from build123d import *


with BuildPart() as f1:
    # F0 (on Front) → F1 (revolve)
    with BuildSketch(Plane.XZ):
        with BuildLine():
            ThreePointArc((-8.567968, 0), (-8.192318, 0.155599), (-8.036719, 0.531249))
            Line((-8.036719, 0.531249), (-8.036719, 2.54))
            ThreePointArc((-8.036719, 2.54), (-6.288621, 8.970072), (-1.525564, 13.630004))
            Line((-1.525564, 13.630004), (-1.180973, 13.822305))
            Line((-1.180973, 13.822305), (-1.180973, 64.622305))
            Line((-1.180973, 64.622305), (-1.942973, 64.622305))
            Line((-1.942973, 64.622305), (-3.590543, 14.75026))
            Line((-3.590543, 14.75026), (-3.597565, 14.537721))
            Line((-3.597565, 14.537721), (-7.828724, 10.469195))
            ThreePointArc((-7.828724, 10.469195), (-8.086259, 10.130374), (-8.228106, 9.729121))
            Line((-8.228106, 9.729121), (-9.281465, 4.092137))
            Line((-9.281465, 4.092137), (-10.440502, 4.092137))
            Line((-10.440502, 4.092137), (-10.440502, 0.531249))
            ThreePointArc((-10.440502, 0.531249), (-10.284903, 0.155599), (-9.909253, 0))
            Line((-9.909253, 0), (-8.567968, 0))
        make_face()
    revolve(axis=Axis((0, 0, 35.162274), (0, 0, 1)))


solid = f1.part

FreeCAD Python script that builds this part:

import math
import FreeCAD as App
import Part
import Sketcher

V = App.Vector
Q = App.Units.Quantity

doc = App.newDocument("Part")
body = doc.addObject("PartDesign::Body", "Body")

# Sketch on XZ plane
sketch1 = body.newObject("Sketcher::SketchObject", "Sketch")
sketch1.AttachmentSupport = (doc.getObject("XZ_Plane"), [""])
sketch1.MapMode = "FlatFace"
sketch1.addGeometry([
    Part.ArcOfCircle(Part.Circle(V(-8.57, 0.53, 0), V(0, 0, 1), 0.53), math.radians(-90), math.radians(0)),  # 0
    Part.LineSegment(V(-8.04, 0.53, 0), V(-8.04, 2.54, 0)),  # 1
    Part.ArcOfCircle(Part.Circle(V(4.66, 2.54, 0), V(0, 0, 1), 12.7), math.radians(119), math.radians(180)),  # 2
    Part.LineSegment(V(-1.53, 13.63, 0), V(-1.18, 13.82, 0)),  # 3
    Part.LineSegment(V(-1.18, 13.82, 0), V(-1.18, 64.62, 0)),  # 4
    Part.LineSegment(V(-1.18, 64.62, 0), V(-1.94, 64.62, 0)),  # 5
    Part.LineSegment(V(-1.94, 64.62, 0), V(-3.59, 14.75, 0)),  # 6
    Part.LineSegment(V(-3.59, 14.75, 0), V(-3.6, 14.54, 0)),  # 7
    Part.LineSegment(V(-3.6, 14.54, 0), V(-7.83, 10.47, 0)),  # 8
    Part.ArcOfCircle(Part.Circle(V(-6.87, 9.48, 0), V(0, 0, 1), 1.38), math.radians(134), math.radians(169)),  # 9
    Part.LineSegment(V(-8.23, 9.73, 0), V(-9.28, 4.09, 0)),  # 10
    Part.LineSegment(V(-9.28, 4.09, 0), V(-10.44, 4.09, 0)),  # 11
    Part.LineSegment(V(-10.44, 4.09, 0), V(-10.44, 0.53, 0)),  # 12
    Part.ArcOfCircle(Part.Circle(V(-9.91, 0.53, 0), V(0, 0, 1), 0.53), math.radians(180), math.radians(270)),  # 13
    Part.LineSegment(V(-9.91, 0, 0), V(-8.57, 0, 0)),  # 14
], False)
sketch1.addConstraint([
    Sketcher.Constraint("Tangent", 0, 2, 1, 1),
    Sketcher.Constraint("Tangent", 1, 2, 2, 2),
    Sketcher.Constraint("Tangent", 2, 1, 3, 1),
    Sketcher.Constraint("Coincident", 3, 2, 4, 1),
    Sketcher.Constraint("Coincident", 4, 2, 5, 1),
    Sketcher.Constraint("Coincident", 5, 2, 6, 1),
    Sketcher.Constraint("Coincident", 6, 2, 7, 1),
    Sketcher.Constraint("Coincident", 7, 2, 8, 1),
    Sketcher.Constraint("Coincident", 8, 2, 9, 1),
    Sketcher.Constraint("Tangent", 9, 2, 10, 1),
    Sketcher.Constraint("Coincident", 10, 2, 11, 1),
    Sketcher.Constraint("Coincident", 11, 2, 12, 1),
    Sketcher.Constraint("Tangent", 12, 2, 13, 1),
    Sketcher.Constraint("Tangent", 13, 2, 14, 1),
    Sketcher.Constraint("Tangent", 14, 2, 0, 1),
    Sketcher.Constraint("Vertical", 1),
    Sketcher.Constraint("Vertical", 4),
    Sketcher.Constraint("Horizontal", 5),
    Sketcher.Constraint("Horizontal", 11),
    Sketcher.Constraint("Vertical", 12),
    Sketcher.Constraint("Horizontal", 14),
    Sketcher.Constraint("Equal", 0, 13),
    Sketcher.Constraint("PointOnObject", 13, 2, -1),
    Sketcher.Constraint("Radius", 2, Q("0.5000001 in")),
    Sketcher.Constraint("DistanceY", 4, 1, 4, 2, Q("2 in")),
    Sketcher.Constraint("DistanceX", 5, 2, 5, 1, Q("0.03 in")),
    Sketcher.Constraint("DistanceY", -1, 1, 2, 3, Q("0.0999999 in")),
    Sketcher.Constraint("Radius", 9, 1.3778),
    Sketcher.Constraint("Radius", 0, 0.531248),
    Sketcher.Constraint("DistanceY", 12, 2, 12, 1, 3.560888),
    Sketcher.Constraint("DistanceY", 2, 1, 3, 2, 0.192301),
    Sketcher.Constraint("DistanceX", 7, 2, 2, 1, 2.072001),
    Sketcher.Constraint("DistanceY", 9, 2, 7, 2, 4.8086),
    Sketcher.Constraint("Distance", 8, 5.86989),
    Sketcher.Constraint("DistanceX", 11, 2, 11, 1, 1.159037),
    Sketcher.Constraint("DistanceX", 14, 1, 14, 2, 1.341285),
    Sketcher.Constraint("DistanceX", 9, 3, -1, 1, 6.873749),
    Sketcher.Constraint("DistanceY", -1, 1, 9, 3, 9.476041),
    Sketcher.Constraint("DistanceX", 0, 2, -1, 1, 8.036719),
    Sketcher.Constraint("DistanceY", -1, 1, 6, 2, 14.75026),
    Sketcher.Constraint("DistanceX", 6, 2, 2, 1, 2.064979),
    Sketcher.Constraint("DistanceX", 6, 2, 3, 2, 2.40957),
])
revolution = body.newObject("PartDesign::Revolution", "Revolution")
revolution.Profile = sketch1
revolution.ReferenceAxis = (sketch1, ["V_Axis"])
revolution.Angle = 360

doc.recompute()
